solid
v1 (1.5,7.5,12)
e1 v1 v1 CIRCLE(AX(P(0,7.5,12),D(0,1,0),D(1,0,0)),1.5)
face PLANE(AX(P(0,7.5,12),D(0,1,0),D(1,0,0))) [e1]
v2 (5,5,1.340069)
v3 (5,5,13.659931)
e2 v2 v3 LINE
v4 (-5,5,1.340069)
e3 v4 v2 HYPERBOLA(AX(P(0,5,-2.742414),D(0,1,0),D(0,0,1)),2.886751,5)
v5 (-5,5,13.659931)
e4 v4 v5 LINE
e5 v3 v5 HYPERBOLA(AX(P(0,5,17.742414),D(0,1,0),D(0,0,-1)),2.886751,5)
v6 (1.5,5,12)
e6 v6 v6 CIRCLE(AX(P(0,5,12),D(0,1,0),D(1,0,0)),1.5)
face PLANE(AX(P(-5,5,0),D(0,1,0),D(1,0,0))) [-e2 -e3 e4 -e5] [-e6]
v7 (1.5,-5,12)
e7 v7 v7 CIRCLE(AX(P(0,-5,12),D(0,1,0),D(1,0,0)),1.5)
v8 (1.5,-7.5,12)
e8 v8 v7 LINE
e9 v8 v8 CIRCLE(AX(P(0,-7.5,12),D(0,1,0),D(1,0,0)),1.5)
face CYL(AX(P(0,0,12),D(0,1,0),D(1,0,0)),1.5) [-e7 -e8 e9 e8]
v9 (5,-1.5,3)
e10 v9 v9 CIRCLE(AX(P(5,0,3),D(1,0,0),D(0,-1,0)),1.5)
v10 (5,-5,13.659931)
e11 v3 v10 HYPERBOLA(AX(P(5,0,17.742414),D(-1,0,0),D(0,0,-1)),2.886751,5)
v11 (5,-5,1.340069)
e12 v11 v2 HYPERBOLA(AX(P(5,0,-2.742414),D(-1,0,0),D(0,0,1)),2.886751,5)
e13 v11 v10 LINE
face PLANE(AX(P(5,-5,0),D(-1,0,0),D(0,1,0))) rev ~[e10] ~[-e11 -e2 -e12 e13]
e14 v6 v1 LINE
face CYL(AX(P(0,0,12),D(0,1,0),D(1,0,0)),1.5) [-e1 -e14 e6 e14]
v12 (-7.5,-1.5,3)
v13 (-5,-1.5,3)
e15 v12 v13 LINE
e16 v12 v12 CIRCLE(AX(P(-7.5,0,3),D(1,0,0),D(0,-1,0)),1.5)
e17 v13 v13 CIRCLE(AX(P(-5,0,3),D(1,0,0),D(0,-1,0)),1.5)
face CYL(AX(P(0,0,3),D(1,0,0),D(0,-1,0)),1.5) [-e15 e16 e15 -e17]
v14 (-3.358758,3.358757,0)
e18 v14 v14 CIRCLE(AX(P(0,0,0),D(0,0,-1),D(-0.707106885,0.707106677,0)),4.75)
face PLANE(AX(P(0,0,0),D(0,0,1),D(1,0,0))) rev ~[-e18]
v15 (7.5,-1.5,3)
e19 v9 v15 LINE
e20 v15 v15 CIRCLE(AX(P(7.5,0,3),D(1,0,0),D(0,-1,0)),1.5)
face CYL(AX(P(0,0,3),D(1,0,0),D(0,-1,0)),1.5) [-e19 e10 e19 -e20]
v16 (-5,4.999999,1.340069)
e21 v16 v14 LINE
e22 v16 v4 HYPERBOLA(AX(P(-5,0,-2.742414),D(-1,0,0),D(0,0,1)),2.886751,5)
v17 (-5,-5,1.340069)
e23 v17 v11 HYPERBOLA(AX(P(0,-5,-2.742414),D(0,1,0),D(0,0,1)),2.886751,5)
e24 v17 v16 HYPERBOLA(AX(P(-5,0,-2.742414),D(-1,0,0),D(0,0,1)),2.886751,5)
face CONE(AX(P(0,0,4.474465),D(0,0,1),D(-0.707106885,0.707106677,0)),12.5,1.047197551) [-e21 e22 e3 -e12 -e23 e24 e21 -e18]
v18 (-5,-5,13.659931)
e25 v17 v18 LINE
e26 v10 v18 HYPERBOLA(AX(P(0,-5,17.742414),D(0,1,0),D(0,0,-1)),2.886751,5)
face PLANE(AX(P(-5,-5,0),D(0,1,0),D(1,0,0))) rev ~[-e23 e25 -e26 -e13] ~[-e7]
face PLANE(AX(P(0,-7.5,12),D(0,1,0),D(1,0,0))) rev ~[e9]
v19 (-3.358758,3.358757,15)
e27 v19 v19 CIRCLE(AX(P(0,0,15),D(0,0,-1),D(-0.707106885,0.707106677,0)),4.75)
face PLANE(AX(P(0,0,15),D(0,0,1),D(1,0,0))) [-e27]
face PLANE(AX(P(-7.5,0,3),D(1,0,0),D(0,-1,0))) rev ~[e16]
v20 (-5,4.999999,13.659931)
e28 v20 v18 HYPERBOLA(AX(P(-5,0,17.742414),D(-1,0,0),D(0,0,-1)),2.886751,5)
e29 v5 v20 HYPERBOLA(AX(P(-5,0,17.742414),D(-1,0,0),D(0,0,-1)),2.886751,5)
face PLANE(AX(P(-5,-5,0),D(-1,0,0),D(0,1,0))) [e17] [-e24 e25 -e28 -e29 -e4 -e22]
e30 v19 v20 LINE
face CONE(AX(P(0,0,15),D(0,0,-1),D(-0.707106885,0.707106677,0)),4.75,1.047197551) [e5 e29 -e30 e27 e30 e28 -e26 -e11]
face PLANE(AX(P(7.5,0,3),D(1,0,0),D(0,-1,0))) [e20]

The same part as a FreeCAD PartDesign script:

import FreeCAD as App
import Part
import Sketcher
from FreeCAD import Vector
Q = App.Units.Quantity


def add_polygon(sketch, points):
    """Adds a closed chain of lines whose ends are joined by coincident constraints."""
    first, n = sketch.GeometryCount, len(points)
    for a, b in zip(points, points[1:] + points[:1]):
        sketch.addGeometry(Part.LineSegment(App.Vector(*a, 0), App.Vector(*b, 0)), False)
    for i in range(n):
        sketch.addConstraint(Sketcher.Constraint("Coincident", first + i, 2, first + (i + 1) % n, 1))

doc = App.newDocument("Part")
body = doc.addObject("PartDesign::Body", "Body")

# Sketch on XY plane
sketch1 = doc.addObject("Sketcher::SketchObject", "Sketch")
body.addObject(sketch1)
sketch1.AttachmentSupport = (doc.XY_Plane, [""])
sketch1.MapMode = "FlatFace"
add_polygon(sketch1, [(-5, 5), (-5, -5), (5, -5), (5, 5)])  # lines 0-3
sketch1.addConstraint([
    Sketcher.Constraint("Vertical", 0),
    Sketcher.Constraint("Horizontal", 1),
    Sketcher.Constraint("Vertical", 2),
    Sketcher.Constraint("Horizontal", 3),
    Sketcher.Constraint("Symmetric", 0, 2, 2, 2, -1, 1),
    Sketcher.Constraint("Equal", 3, 0),
    Sketcher.Constraint("DistanceX", 1, 1, 1, 2, 10.0),
])
pad1 = doc.addObject("PartDesign::Pad", "Pad")
body.addObject(pad1)
pad1.Profile = sketch1
pad1.Length = 15

# Sketch on XZ plane
sketch2 = doc.addObject("Sketcher::SketchObject", "Sketch001")
body.addObject(sketch2)
sketch2.AttachmentSupport = (doc.XZ_Plane, [""])
sketch2.MapMode = "FlatFace"
add_polygon(sketch2, [(-5, 0), (-15, 0), (-15, 15), (-5, 15), (-12, 11), (-12, 4)])  # lines 0-5
sketch2.addConstraint([
    Sketcher.Constraint("Horizontal", 0),
    Sketcher.Constraint("Vertical", 1),
    Sketcher.Constraint("Horizontal", 2),
    Sketcher.Constraint("Vertical", 4),
    Sketcher.Constraint("PointOnObject", 0, 2, -1),
    Sketcher.Constraint("Vertical", 2, 2, 5, 2),
    Sketcher.Constraint("Equal", 3, 5),
    Sketcher.Constraint("DistanceY", 1, 1, 1, 2, 15.0),
    Sketcher.Constraint("Angle", 3, Q("-150 deg")),
    Sketcher.Constraint("DistanceX", 0, 2, 0, 1, 10.29),
    Sketcher.Constraint("DistanceX", 3, 2, -1, 1, 12.5),
    Sketcher.Constraint("DistanceX", 0, 2, -1, 1, 15.04),
])
groove = doc.addObject("PartDesign::Groove", "Groove")
body.addObject(groove)
groove.Profile = sketch2
groove.ReferenceAxis = (sketch2, ["V_Axis"])
groove.Angle = 360

# Sketch on XZ plane
sketch3 = doc.addObject("Sketcher::SketchObject", "Sketch002")
body.addObject(sketch3)
sketch3.AttachmentSupport = (doc.XZ_Plane, [""])
sketch3.MapMode = "FlatFace"
sketch3.addGeometry(Part.Circle(Vector(0, 12, 0), Vector(0, 0, 1), 1.5), False)
sketch3.addConstraint([
    Sketcher.Constraint("PointOnObject", 0, 3, -2),
    Sketcher.Constraint("Diameter", 0, 3.0),
    Sketcher.Constraint("DistanceY", -1, 1, 0, 3, 12.0),
])
pad2 = doc.addObject("PartDesign::Pad", "Pad001")
body.addObject(pad2)
pad2.Profile = sketch3
pad2.Length = 15
pad2.Midplane = True

# Sketch on YZ plane
sketch4 = doc.addObject("Sketcher::SketchObject", "Sketch003")
body.addObject(sketch4)
sketch4.AttachmentSupport = (doc.YZ_Plane, [""])
sketch4.MapMode = "FlatFace"
sketch4.addGeometry(Part.Circle(Vector(0, 3, 0), Vector(0, 0, 1), 1.5), False)
sketch4.addConstraint([
    Sketcher.Constraint("PointOnObject", 0, 3, -2),
    Sketcher.Constraint("Diameter", 0, 3.0),
    Sketcher.Constraint("DistanceY", -1, 1, 0, 3, 3.0),
])
pad3 = doc.addObject("PartDesign::Pad", "Pad002")
body.addObject(pad3)
pad3.Profile = sketch4
pad3.Length = 15
pad3.Midplane = True

doc.recompute()
